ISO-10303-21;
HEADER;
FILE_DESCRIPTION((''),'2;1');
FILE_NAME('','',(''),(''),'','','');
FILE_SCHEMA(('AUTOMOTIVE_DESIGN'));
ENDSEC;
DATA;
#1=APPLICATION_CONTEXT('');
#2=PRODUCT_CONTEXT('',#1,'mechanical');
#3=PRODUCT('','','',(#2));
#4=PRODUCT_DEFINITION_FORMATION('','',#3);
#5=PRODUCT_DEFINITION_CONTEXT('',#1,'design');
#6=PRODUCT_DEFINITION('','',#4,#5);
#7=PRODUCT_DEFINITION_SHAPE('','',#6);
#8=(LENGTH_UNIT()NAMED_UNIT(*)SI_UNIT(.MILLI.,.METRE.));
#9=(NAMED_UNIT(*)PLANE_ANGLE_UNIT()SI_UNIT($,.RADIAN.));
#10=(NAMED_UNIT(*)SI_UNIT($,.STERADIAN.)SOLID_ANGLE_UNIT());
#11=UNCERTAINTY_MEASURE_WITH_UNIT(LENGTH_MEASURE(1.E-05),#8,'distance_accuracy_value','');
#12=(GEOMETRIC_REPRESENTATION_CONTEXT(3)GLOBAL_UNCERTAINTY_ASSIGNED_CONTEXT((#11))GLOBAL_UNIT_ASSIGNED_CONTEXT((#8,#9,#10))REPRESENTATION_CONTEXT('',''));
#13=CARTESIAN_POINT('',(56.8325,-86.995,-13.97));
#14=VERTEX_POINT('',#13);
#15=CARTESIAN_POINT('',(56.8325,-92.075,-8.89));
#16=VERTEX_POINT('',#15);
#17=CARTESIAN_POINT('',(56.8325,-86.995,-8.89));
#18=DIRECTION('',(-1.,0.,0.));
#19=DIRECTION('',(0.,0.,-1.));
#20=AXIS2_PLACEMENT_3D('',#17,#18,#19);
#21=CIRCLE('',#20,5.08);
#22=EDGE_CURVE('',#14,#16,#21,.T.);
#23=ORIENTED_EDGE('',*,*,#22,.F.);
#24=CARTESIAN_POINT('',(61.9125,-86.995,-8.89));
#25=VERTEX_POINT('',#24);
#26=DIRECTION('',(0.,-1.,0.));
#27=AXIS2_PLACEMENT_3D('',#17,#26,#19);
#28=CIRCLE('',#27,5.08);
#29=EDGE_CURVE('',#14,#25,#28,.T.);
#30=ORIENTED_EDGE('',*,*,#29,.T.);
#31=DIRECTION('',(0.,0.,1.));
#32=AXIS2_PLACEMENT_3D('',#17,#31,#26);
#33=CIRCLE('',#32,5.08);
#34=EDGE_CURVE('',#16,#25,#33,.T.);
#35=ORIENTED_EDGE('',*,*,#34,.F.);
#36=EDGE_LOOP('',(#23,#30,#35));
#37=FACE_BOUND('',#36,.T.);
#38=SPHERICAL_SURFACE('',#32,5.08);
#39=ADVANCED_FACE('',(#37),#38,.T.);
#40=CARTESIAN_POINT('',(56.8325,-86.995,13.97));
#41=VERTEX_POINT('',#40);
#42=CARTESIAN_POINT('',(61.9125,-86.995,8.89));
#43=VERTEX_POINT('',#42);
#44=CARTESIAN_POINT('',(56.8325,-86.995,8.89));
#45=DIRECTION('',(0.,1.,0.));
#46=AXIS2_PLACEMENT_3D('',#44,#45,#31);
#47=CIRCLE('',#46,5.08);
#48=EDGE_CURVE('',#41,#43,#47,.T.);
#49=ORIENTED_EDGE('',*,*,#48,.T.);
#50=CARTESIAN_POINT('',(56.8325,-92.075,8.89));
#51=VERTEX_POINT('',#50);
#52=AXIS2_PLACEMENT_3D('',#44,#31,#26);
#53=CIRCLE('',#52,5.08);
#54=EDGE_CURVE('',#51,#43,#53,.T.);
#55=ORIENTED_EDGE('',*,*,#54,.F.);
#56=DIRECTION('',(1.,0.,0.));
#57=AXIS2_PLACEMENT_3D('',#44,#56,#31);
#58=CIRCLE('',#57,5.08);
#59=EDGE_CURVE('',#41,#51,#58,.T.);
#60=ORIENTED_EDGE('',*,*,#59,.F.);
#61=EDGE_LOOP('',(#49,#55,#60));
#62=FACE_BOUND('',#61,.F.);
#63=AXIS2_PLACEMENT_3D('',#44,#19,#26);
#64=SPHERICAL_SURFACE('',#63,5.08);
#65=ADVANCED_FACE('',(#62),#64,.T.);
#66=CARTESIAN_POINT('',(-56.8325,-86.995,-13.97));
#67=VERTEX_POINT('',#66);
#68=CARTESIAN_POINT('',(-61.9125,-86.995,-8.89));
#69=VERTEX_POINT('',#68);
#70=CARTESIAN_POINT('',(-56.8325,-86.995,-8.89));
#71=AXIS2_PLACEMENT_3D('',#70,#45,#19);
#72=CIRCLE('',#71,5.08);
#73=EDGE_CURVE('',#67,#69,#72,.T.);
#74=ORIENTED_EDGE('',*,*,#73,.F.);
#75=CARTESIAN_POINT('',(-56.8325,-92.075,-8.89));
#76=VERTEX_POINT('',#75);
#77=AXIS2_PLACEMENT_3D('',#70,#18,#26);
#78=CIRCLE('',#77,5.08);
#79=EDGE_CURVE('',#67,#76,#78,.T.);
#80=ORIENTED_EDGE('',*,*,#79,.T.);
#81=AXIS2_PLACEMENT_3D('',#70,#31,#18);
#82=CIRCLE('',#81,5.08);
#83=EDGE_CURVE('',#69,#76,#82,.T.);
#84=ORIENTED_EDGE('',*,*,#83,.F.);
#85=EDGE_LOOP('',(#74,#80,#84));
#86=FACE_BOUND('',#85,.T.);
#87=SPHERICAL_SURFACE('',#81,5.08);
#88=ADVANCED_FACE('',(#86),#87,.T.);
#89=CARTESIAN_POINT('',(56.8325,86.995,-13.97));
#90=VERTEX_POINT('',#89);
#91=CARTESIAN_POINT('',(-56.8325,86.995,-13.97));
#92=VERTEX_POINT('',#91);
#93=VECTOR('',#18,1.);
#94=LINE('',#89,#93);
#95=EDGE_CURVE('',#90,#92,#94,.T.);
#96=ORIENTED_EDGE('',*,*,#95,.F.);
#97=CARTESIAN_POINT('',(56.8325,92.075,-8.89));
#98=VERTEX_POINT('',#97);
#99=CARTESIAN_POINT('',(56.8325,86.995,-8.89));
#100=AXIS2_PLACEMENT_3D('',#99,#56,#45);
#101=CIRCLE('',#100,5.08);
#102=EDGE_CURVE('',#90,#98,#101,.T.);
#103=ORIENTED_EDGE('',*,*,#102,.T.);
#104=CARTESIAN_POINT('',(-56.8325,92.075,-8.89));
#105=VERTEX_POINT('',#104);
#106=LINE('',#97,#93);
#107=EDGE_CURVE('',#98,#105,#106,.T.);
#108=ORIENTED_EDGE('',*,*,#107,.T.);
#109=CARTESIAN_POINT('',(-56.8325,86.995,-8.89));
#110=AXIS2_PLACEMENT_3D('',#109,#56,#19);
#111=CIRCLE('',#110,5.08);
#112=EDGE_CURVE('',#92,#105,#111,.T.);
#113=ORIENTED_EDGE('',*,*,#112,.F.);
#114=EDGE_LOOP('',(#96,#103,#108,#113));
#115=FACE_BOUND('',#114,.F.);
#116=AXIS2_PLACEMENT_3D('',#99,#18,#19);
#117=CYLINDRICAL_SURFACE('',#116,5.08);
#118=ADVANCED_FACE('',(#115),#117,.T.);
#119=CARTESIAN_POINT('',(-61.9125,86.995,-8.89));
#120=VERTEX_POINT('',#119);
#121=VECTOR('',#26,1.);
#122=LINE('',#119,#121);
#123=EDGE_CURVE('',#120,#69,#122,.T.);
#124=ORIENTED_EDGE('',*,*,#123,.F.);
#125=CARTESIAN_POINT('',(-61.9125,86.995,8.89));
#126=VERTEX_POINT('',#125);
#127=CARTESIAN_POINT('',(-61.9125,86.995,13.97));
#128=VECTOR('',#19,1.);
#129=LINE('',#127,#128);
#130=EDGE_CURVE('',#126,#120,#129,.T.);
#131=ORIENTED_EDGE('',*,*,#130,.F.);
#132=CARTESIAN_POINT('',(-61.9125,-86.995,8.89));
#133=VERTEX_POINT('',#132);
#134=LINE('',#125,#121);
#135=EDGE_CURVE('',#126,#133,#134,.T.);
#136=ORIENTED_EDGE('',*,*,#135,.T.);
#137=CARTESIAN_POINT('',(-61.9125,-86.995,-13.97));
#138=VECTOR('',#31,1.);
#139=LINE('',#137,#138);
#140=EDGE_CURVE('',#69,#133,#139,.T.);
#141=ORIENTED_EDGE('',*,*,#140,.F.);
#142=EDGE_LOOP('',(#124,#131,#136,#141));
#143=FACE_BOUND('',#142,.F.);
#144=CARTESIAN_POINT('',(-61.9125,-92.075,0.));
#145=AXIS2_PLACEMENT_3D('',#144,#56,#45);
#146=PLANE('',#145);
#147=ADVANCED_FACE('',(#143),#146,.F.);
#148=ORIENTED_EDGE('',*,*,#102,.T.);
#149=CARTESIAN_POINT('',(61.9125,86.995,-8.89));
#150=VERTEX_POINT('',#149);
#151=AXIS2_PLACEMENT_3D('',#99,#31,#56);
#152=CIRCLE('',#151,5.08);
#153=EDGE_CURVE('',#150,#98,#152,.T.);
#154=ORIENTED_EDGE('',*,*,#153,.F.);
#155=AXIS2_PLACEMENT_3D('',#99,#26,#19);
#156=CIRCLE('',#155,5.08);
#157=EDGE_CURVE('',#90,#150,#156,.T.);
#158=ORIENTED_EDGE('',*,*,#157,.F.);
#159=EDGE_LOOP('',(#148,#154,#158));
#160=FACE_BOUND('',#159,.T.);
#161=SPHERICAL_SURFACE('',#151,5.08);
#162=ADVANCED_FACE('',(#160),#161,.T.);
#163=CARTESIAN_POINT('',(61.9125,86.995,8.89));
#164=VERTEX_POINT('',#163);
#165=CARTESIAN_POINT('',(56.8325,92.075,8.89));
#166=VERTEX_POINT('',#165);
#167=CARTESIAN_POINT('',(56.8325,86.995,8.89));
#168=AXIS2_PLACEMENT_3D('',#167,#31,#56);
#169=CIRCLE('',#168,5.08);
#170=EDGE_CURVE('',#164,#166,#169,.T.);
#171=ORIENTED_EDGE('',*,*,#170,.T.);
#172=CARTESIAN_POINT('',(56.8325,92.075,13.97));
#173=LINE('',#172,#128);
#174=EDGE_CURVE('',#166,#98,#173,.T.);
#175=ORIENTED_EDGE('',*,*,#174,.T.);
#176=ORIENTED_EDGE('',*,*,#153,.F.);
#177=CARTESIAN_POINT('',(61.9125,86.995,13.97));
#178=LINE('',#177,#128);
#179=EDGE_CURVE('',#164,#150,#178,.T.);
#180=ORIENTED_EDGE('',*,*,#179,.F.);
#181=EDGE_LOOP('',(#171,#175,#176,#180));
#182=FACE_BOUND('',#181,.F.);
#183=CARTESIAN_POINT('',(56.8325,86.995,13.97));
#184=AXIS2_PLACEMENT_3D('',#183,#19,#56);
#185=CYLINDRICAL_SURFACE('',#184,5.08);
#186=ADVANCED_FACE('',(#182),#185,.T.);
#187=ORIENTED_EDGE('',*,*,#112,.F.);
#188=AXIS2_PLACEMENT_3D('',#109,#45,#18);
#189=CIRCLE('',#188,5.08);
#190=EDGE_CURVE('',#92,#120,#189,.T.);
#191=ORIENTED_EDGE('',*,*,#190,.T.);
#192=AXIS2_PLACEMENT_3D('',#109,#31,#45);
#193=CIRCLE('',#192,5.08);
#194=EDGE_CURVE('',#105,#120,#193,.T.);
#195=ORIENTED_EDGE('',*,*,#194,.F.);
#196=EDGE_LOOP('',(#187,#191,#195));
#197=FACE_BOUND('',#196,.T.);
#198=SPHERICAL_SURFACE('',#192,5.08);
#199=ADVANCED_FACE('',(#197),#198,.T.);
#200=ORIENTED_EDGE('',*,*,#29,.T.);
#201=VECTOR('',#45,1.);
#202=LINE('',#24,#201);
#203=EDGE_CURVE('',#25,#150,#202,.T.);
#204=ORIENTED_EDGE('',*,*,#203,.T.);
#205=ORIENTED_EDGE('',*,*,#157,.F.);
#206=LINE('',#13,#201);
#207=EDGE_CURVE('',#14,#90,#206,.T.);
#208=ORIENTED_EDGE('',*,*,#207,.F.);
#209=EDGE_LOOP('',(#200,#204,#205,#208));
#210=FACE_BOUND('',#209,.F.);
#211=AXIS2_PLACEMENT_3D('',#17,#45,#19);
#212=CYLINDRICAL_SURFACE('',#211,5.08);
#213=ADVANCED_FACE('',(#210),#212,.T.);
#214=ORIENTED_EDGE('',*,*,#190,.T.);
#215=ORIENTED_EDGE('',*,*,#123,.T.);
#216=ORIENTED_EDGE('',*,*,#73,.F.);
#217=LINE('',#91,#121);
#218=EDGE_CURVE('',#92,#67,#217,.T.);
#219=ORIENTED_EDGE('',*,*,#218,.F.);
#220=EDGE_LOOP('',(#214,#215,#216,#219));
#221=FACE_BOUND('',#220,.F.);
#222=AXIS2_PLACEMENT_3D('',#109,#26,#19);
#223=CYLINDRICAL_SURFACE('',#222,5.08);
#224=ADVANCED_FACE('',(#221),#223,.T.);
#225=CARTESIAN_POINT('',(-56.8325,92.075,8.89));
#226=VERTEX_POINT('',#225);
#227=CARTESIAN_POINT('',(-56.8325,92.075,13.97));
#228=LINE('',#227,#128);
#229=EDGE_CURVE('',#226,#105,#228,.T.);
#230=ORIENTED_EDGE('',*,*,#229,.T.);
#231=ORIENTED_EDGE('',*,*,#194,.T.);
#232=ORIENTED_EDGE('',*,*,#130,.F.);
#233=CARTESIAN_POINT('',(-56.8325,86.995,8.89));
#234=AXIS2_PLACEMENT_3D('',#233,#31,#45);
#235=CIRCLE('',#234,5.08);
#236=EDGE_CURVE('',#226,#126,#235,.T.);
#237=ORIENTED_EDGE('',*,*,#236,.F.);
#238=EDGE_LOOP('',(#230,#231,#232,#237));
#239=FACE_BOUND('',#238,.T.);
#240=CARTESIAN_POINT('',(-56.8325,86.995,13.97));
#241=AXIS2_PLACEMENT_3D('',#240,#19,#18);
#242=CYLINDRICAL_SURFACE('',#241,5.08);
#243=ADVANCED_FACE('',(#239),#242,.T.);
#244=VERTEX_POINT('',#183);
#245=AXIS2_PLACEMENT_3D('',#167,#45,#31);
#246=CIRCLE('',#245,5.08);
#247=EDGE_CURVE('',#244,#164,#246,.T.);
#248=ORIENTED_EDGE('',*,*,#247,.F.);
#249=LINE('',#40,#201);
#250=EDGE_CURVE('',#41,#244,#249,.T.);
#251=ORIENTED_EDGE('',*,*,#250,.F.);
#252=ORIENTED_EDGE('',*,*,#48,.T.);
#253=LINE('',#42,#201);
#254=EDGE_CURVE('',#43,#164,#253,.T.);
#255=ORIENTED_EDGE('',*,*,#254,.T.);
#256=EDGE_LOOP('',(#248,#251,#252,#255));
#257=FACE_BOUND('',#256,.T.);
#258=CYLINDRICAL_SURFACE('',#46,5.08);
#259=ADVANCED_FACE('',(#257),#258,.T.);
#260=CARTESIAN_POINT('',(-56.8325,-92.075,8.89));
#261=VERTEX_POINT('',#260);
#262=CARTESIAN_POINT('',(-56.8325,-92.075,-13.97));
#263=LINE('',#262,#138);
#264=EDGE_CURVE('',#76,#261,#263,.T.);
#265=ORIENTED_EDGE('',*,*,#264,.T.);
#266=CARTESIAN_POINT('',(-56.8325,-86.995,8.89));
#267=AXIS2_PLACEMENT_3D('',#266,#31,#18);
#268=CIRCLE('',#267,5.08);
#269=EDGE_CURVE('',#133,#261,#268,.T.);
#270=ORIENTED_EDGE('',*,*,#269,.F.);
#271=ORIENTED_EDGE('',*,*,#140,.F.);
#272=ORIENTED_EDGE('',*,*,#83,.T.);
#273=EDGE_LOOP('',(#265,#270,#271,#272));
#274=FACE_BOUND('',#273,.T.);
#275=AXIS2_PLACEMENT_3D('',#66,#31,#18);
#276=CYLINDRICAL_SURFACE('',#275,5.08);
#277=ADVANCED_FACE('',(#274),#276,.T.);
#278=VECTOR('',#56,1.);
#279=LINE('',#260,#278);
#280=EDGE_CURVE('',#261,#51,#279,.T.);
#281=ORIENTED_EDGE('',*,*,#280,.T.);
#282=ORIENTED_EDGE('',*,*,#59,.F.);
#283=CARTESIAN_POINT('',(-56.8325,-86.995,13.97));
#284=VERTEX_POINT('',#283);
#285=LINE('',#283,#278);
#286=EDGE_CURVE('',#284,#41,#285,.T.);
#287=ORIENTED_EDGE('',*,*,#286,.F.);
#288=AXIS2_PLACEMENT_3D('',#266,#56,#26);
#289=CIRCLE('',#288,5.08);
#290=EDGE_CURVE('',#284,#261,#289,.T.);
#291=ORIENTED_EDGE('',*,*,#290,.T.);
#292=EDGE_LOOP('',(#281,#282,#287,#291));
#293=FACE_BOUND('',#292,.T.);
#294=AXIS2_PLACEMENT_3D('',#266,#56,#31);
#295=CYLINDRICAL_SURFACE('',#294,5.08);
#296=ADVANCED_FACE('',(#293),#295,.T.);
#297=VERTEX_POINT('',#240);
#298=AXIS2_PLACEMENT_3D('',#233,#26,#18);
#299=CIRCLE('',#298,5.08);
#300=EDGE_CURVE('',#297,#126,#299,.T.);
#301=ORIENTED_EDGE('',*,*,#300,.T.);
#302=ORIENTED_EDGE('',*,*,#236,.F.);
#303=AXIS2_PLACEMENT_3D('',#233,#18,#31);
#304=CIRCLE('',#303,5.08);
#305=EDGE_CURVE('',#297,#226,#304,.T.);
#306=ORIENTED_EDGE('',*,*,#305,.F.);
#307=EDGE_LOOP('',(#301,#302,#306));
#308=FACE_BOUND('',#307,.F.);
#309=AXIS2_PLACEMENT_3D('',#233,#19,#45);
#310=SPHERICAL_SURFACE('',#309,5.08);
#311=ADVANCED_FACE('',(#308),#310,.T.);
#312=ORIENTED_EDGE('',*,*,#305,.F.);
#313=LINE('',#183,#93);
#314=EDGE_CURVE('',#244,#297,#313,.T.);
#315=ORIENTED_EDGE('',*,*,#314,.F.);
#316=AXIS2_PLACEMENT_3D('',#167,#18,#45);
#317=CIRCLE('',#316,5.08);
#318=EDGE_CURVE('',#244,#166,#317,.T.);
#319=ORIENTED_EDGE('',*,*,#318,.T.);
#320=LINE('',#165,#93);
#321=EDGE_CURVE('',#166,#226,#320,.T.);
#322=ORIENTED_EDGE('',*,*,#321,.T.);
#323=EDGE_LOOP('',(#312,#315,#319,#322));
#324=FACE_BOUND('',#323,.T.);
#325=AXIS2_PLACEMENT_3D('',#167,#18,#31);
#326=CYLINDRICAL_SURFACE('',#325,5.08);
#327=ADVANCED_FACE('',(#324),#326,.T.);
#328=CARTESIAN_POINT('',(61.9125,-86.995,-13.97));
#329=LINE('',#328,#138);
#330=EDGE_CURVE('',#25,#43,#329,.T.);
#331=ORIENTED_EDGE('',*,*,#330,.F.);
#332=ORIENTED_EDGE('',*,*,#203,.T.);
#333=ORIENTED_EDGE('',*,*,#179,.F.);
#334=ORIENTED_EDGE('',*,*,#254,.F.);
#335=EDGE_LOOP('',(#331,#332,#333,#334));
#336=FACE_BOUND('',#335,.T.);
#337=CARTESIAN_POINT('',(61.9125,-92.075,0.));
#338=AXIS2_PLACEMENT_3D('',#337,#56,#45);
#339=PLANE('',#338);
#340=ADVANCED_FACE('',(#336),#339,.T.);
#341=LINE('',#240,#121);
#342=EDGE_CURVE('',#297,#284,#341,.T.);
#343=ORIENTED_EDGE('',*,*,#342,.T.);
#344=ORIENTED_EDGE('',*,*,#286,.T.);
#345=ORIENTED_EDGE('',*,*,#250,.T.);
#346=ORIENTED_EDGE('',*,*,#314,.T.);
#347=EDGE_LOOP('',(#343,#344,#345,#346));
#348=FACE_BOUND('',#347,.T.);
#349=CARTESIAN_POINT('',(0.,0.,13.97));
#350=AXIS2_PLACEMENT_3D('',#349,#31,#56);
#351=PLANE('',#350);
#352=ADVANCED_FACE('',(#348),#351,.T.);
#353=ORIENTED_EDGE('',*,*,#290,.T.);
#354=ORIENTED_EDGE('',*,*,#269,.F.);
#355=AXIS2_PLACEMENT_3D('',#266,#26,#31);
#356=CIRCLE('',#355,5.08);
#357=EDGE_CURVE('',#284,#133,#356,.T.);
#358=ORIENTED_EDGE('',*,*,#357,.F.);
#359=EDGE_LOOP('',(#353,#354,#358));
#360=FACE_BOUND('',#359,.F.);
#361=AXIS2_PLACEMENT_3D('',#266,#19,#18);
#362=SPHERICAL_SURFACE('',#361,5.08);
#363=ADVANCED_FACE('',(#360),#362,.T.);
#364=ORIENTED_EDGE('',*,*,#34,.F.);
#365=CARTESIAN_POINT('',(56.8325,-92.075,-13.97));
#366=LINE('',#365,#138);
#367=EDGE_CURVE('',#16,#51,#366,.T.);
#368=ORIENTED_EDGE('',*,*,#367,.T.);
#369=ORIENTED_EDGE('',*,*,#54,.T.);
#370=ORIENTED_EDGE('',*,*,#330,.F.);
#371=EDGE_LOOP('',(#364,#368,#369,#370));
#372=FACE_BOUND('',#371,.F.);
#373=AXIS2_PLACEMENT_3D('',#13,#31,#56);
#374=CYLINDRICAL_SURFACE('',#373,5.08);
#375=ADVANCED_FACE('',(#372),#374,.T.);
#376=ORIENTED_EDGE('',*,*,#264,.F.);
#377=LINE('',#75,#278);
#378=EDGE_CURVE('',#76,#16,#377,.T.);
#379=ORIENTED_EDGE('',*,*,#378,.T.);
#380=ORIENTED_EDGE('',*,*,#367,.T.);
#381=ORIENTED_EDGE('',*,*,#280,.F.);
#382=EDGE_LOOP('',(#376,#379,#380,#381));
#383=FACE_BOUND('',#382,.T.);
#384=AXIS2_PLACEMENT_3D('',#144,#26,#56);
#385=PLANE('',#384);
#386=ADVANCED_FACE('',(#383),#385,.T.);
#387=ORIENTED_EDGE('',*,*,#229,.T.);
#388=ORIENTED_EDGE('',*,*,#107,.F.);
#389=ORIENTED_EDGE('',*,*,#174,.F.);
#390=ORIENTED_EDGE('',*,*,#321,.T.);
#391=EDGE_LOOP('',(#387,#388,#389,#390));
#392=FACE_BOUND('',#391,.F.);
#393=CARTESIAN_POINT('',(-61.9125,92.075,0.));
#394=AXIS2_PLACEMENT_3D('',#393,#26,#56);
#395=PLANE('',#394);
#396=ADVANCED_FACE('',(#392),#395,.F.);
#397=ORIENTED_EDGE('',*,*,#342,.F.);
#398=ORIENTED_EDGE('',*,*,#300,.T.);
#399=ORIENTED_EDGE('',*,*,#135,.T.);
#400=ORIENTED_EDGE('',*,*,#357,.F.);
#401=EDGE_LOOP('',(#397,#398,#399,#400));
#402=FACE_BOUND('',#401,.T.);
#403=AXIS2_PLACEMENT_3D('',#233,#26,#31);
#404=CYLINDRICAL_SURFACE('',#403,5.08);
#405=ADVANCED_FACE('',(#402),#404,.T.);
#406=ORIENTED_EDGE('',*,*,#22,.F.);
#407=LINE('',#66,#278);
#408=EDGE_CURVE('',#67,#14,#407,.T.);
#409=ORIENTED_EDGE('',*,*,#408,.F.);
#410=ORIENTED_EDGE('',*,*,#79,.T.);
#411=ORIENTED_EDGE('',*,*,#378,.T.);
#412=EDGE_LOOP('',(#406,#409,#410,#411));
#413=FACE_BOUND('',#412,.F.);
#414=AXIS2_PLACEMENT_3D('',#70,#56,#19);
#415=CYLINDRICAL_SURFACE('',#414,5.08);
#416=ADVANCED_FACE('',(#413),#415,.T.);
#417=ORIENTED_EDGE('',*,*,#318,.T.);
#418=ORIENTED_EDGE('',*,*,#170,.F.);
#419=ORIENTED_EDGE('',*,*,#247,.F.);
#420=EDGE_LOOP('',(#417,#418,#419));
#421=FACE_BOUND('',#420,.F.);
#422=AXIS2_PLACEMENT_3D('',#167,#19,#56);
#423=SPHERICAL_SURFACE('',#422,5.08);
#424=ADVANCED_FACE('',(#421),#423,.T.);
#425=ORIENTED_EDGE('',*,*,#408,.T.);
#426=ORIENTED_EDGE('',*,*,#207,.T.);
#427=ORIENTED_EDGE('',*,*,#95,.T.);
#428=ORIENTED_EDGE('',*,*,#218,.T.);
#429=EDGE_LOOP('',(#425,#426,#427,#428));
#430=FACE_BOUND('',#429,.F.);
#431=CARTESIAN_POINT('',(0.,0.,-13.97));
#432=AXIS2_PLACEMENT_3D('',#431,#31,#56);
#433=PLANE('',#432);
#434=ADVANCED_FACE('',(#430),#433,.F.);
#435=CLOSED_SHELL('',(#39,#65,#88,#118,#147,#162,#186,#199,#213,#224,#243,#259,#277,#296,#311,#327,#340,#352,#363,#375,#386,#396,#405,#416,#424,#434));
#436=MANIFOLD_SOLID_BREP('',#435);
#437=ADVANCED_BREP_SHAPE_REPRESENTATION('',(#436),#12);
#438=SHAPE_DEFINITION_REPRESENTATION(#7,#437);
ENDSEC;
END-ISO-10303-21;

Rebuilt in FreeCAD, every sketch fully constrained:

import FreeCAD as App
import Part
import Sketcher
from FreeCAD import Vector
Q = App.Units.Quantity


def edges_at(feature, points):
    """Names of the edges that pass closest to the given points."""
    edges = feature.Shape.Edges
    near = lambda p: min(range(len(edges)), key=lambda i: edges[i].distToShape(Part.Vertex(*p))[0])
    return sorted({f"Edge{near(p) + 1}" for p in points})

doc = App.newDocument("Part")
body = doc.addObject("PartDesign::Body", "Body")

# Sketch on XY plane
sketch1 = doc.addObject("Sketcher::SketchObject", "Sketch")
body.addObject(sketch1)
sketch1.AttachmentSupport = (doc.XY_Plane, [""])
sketch1.MapMode = "FlatFace"
sketch1.addGeometry([
    Part.LineSegment(Vector(-61.9125, 92.075, 0), Vector(-61.9125, -92.075, 0)),
    Part.LineSegment(Vector(-61.9125, -92.075, 0), Vector(61.9125, -92.075, 0)),
    Part.LineSegment(Vector(61.9125, -92.075, 0), Vector(61.9125, 92.075, 0)),
    Part.LineSegment(Vector(61.9125, 92.075, 0), Vector(-61.9125, 92.075, 0)),
], False)
sketch1.addConstraint([
    Sketcher.Constraint("Coincident", 0, 2, 1, 1),
    Sketcher.Constraint("Coincident", 1, 2, 2, 1),
    Sketcher.Constraint("Coincident", 2, 2, 3, 1),
    Sketcher.Constraint("Coincident", 3, 2, 0, 1),
    Sketcher.Constraint("Vertical", 0),
    Sketcher.Constraint("Horizontal", 1),
    Sketcher.Constraint("Vertical", 2),
    Sketcher.Constraint("Horizontal", 3),
    Sketcher.Constraint("Symmetric", 0, 2, 2, 2, -1, 1),
    Sketcher.Constraint("DistanceY", 0, 2, 0, 1, Q("7.25 in")),
    Sketcher.Constraint("DistanceX", 1, 1, 1, 2, Q("4.875 in")),
])
pad1 = doc.addObject("PartDesign::Pad", "Pad")
body.addObject(pad1)
pad1.Profile = sketch1
pad1.Length = Q("1.1 in")
pad1.Midplane = True
doc.recompute()

fillet = doc.addObject("PartDesign::Fillet", "Fillet")
body.addObject(fillet)
fillet.Base = (pad1, edges_at(pad1, [
    (-61.913, -92.075, 0),
    (61.913, -92.075, 0),
    (61.913, 92.075, 0),
    (-61.913, 92.075, 0),
]))
fillet.Radius = Q("0.2 in")
doc.recompute()

fillet2 = doc.addObject("PartDesign::Fillet", "Fillet001")
body.addObject(fillet2)
fillet2.Base = (fillet, edges_at(fillet, [(61.913, 0, 13.97), (61.913, 0, -13.97)]))
fillet2.Radius = Q("0.2 in")

doc.recompute()
